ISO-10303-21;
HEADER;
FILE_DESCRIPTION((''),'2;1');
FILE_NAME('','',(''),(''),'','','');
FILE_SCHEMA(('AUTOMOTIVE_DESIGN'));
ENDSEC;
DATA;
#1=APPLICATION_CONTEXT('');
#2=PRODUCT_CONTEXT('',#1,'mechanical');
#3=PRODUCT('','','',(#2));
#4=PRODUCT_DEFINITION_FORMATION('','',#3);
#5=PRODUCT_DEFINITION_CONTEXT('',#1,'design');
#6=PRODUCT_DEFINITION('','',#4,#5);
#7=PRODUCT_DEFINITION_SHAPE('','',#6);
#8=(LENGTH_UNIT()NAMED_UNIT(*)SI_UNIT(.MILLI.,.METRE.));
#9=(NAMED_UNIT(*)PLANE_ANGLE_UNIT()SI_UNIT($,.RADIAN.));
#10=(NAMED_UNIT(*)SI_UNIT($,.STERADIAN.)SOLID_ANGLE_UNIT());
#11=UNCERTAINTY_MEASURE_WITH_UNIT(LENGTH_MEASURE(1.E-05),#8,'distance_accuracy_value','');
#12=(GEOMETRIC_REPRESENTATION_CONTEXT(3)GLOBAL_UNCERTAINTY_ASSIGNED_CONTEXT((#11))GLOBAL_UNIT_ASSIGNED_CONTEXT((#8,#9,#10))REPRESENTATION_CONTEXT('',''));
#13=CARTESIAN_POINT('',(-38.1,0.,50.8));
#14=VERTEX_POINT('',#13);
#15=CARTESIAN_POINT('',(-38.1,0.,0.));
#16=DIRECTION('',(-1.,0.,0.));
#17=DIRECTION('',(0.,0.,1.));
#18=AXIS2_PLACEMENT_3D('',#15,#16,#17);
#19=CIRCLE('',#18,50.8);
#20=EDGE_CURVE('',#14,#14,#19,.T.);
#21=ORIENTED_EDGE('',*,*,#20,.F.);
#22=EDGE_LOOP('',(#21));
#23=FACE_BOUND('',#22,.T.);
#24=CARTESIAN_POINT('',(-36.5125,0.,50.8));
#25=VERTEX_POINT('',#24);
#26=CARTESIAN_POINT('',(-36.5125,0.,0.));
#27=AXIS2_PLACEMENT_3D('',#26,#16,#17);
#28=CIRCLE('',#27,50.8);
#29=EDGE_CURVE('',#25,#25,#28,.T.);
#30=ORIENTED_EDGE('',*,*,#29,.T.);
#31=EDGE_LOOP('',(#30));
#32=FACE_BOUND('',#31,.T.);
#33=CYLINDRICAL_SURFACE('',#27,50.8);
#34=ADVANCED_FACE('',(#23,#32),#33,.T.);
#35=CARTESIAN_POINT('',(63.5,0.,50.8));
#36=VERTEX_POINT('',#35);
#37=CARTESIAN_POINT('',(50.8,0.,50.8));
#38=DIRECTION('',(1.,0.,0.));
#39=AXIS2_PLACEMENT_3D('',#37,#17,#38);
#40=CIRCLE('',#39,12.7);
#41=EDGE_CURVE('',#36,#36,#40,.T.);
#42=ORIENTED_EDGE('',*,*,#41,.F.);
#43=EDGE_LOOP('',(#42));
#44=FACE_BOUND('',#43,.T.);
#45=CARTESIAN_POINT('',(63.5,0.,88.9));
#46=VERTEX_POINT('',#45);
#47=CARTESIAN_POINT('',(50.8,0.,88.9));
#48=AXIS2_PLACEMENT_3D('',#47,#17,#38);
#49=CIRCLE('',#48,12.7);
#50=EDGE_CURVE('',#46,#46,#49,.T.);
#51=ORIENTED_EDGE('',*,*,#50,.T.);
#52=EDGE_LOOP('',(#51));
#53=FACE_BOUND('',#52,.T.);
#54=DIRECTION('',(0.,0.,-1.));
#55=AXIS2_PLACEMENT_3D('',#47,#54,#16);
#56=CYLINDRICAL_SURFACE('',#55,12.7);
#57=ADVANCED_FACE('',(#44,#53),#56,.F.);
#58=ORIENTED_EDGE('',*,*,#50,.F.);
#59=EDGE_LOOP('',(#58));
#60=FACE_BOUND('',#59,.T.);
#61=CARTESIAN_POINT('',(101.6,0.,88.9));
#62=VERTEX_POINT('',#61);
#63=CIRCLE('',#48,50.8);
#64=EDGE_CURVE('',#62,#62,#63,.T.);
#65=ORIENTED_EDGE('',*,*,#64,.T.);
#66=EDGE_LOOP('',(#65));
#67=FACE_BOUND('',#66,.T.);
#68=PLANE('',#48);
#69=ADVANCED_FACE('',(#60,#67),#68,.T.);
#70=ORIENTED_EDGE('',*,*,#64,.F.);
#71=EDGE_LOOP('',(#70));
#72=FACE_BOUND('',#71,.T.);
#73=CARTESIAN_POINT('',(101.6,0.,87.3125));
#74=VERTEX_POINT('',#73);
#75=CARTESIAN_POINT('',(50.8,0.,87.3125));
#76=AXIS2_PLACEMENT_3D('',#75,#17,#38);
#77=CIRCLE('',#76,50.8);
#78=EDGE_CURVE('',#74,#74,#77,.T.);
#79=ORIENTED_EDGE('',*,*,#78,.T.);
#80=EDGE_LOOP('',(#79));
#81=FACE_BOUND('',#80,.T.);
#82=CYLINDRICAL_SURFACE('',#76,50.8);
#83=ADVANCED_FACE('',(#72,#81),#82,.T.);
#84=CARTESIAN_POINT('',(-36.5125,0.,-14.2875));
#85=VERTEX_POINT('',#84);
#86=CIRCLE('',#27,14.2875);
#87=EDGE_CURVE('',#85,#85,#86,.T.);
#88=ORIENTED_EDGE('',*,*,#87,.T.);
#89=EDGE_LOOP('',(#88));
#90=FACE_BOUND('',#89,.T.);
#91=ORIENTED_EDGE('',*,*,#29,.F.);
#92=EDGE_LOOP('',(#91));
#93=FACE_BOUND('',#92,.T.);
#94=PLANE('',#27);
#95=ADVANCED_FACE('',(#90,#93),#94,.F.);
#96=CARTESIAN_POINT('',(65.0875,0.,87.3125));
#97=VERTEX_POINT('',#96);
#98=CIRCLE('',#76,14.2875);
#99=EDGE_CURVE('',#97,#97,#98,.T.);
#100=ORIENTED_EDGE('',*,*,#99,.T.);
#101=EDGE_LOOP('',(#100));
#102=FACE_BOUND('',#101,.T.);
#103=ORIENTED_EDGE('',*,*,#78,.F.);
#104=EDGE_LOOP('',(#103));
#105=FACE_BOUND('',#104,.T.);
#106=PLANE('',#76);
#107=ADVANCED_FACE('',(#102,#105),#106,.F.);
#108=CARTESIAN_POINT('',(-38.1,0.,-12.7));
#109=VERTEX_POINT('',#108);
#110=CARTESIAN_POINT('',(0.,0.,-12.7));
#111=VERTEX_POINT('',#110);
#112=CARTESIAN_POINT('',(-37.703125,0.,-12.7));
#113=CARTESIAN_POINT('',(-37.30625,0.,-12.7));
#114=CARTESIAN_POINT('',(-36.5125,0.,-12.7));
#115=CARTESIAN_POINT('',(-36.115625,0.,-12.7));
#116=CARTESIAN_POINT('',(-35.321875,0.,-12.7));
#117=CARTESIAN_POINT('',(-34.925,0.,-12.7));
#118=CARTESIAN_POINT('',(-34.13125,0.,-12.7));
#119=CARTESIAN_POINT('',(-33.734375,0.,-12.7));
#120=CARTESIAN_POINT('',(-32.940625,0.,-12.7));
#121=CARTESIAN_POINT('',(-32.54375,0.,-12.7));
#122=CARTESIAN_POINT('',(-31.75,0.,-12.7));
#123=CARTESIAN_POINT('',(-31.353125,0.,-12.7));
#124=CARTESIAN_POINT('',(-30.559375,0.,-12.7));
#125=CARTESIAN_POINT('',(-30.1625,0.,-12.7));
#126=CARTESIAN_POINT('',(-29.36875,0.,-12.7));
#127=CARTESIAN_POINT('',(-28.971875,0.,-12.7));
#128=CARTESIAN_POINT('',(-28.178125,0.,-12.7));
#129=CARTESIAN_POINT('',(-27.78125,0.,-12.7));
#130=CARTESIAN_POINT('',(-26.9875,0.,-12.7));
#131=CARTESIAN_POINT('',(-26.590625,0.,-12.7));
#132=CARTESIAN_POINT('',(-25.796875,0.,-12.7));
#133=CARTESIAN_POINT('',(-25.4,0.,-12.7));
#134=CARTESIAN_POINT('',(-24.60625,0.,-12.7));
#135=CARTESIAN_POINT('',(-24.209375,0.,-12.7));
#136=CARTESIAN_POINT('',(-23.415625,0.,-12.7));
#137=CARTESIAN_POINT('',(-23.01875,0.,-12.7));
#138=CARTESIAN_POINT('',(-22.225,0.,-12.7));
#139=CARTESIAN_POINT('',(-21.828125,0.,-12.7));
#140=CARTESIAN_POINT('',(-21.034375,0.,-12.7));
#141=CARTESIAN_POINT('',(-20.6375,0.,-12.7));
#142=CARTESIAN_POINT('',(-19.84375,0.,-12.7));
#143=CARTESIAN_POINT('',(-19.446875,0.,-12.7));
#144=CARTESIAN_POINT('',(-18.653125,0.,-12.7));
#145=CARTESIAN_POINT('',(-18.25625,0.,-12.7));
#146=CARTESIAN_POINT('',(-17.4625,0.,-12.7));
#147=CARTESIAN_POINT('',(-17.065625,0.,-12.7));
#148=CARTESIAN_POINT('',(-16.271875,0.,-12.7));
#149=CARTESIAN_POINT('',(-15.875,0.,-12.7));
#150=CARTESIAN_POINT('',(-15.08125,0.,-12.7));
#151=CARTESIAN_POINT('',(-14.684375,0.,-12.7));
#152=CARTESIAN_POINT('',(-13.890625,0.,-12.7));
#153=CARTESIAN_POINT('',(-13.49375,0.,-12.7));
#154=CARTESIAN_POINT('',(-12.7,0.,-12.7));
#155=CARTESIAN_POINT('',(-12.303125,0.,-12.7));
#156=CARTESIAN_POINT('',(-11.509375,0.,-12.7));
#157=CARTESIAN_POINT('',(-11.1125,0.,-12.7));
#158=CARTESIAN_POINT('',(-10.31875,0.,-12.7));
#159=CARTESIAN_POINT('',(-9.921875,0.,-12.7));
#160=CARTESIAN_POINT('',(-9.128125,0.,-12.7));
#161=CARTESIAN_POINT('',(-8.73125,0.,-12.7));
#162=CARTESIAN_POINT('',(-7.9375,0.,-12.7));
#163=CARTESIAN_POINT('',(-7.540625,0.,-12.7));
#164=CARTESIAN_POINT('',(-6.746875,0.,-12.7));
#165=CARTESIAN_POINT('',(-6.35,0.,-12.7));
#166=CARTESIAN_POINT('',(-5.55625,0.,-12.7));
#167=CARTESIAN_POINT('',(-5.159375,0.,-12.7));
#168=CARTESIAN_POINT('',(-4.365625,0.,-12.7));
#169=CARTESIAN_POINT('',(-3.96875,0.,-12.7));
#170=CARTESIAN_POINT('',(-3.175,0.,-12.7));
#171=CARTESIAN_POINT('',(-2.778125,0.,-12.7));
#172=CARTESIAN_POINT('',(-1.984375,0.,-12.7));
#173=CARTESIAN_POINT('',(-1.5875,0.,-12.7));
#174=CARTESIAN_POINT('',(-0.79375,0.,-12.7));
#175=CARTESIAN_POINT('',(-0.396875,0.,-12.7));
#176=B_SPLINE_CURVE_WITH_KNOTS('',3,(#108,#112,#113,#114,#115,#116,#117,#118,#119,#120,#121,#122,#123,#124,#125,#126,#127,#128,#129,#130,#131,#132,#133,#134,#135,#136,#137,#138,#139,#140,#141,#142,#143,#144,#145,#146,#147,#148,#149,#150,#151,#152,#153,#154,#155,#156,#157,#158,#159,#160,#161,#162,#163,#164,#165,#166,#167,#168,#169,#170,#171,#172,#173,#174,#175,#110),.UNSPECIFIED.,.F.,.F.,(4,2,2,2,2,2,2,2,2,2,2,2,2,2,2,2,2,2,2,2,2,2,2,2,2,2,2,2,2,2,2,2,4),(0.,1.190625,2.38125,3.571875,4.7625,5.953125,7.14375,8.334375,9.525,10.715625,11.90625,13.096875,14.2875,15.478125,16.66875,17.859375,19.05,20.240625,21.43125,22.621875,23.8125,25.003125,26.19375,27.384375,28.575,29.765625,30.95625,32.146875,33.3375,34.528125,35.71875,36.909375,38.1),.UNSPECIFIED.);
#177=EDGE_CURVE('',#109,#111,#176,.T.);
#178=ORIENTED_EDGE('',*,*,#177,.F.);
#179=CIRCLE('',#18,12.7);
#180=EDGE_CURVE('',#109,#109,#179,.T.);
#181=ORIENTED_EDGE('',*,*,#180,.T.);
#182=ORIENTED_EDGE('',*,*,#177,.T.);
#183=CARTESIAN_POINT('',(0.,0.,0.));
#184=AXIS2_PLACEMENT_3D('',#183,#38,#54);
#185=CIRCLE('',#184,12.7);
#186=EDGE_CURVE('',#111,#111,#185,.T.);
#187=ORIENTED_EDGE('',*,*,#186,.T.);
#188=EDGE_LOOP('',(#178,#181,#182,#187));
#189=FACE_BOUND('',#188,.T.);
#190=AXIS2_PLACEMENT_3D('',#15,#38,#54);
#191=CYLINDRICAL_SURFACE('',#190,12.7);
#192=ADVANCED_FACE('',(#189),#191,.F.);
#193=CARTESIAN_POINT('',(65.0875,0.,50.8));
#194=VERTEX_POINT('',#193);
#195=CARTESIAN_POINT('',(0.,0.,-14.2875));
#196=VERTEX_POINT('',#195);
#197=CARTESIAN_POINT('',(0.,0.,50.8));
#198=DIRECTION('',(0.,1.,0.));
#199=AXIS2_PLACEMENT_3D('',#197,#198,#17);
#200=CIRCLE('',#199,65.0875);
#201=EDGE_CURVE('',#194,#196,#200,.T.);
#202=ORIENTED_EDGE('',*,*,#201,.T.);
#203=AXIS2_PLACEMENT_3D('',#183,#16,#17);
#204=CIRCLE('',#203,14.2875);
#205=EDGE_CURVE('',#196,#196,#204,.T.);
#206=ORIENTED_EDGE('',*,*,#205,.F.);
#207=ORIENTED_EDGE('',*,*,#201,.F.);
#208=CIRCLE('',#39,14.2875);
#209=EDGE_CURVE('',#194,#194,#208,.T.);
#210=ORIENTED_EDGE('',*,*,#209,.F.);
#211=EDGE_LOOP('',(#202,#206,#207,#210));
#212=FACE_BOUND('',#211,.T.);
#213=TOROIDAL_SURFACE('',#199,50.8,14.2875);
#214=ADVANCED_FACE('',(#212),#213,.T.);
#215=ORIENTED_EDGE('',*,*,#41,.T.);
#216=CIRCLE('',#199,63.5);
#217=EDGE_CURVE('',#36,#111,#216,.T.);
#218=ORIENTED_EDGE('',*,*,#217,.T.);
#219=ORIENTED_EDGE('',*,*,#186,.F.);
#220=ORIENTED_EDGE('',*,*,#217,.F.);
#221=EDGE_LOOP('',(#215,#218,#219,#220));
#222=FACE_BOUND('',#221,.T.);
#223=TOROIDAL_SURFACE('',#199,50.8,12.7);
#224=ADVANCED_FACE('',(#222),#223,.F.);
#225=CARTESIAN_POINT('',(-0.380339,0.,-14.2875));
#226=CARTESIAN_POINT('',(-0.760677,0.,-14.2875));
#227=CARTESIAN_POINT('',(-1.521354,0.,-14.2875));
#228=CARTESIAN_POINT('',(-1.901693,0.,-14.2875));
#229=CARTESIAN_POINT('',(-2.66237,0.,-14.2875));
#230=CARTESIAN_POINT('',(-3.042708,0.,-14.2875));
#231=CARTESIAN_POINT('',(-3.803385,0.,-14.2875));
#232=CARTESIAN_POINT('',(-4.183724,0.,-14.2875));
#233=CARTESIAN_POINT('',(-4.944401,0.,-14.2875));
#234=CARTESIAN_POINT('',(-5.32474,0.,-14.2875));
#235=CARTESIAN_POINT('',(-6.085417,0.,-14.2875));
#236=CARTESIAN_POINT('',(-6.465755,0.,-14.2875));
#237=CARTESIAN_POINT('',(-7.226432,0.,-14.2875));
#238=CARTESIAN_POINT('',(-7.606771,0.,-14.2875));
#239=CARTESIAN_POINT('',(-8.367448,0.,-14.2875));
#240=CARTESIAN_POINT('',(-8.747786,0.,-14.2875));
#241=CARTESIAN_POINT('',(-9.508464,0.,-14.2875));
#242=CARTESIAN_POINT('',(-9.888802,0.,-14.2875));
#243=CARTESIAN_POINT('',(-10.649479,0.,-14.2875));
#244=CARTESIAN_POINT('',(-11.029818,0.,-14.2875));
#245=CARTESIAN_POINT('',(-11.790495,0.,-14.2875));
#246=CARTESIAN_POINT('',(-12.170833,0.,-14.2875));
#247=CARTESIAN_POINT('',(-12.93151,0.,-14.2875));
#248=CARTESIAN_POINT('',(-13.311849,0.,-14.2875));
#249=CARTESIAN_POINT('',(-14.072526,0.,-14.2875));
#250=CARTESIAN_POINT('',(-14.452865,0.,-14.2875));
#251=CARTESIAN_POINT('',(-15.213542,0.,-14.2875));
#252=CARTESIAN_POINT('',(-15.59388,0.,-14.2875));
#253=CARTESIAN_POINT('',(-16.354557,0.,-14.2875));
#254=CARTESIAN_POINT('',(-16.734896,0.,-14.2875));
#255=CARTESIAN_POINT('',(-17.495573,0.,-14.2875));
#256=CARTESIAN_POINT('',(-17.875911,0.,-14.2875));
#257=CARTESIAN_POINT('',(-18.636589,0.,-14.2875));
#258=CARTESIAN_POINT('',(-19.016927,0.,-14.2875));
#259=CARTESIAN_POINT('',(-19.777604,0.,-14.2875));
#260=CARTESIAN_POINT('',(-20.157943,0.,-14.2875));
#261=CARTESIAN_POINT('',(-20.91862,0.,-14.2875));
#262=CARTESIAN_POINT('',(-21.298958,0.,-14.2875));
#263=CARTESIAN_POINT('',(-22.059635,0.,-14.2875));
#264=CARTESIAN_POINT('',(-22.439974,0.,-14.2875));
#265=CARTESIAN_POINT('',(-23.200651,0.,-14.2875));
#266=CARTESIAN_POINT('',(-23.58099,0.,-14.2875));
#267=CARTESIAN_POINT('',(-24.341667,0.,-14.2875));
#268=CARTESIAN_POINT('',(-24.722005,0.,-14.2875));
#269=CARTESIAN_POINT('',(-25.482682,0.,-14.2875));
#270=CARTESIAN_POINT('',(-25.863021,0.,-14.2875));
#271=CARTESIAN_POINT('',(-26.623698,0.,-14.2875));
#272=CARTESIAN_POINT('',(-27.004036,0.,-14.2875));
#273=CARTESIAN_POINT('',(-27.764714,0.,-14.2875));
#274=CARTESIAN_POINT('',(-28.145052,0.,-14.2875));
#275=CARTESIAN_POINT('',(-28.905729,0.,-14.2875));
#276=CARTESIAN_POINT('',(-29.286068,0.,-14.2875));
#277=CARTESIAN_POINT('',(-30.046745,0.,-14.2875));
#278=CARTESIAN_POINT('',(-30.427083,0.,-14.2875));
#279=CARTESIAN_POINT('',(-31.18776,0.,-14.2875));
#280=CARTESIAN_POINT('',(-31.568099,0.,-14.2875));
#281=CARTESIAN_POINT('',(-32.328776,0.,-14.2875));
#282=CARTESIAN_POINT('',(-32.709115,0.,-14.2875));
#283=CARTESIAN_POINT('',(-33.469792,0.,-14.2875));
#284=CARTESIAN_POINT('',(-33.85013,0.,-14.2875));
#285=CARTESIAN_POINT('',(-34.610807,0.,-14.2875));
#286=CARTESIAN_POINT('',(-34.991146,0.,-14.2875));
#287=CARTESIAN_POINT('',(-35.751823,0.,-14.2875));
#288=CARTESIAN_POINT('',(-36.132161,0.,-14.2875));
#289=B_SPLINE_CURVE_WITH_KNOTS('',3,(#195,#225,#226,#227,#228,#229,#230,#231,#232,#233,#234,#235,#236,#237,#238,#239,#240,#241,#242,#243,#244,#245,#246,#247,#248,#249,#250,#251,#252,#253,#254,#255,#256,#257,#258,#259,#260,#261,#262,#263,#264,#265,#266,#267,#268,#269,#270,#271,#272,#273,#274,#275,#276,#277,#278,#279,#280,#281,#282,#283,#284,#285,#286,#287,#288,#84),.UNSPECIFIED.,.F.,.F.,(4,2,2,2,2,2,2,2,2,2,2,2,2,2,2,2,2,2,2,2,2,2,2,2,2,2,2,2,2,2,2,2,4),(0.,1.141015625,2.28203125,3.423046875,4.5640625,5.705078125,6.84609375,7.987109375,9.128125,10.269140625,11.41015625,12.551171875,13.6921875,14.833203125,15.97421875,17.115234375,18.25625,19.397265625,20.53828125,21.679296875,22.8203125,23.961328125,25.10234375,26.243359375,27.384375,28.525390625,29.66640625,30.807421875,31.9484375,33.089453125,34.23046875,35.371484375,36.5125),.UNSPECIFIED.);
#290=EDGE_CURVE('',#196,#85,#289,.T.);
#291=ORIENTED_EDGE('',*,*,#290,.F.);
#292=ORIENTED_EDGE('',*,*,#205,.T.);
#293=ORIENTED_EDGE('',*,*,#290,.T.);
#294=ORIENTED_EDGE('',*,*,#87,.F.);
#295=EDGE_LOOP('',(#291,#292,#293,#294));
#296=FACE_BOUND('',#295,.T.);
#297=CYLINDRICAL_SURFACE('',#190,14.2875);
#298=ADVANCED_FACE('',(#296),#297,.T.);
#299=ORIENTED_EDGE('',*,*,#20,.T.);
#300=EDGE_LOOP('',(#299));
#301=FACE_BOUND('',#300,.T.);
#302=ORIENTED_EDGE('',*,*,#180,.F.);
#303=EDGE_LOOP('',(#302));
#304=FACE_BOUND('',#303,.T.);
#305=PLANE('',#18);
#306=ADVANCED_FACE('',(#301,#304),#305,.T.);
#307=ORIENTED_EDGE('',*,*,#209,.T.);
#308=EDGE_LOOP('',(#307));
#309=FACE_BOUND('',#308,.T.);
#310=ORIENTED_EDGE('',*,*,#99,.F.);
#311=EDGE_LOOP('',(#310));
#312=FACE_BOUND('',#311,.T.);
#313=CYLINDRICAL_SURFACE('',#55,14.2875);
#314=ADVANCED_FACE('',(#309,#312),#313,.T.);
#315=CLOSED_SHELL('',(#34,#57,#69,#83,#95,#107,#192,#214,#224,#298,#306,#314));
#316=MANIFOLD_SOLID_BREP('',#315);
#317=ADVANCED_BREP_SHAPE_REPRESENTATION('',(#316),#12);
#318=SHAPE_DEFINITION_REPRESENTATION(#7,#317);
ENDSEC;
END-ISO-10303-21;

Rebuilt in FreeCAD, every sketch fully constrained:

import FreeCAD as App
import Part
import Sketcher
from FreeCAD import Vector
Q = App.Units.Quantity

doc = App.newDocument("Part")
body = doc.addObject("PartDesign::Body", "Body")

# Sketch on YZ plane
sketch1 = doc.addObject("Sketcher::SketchObject", "Sketch")
body.addObject(sketch1)
sketch1.AttachmentSupport = (doc.YZ_Plane, [""])
sketch1.MapMode = "FlatFace"
sketch1.addGeometry([
    Part.Circle(Vector(0, 0, 0), Vector(0, 0, 1), 14),
    Part.Circle(Vector(0, 0, 0), Vector(0, 0, 1), 13),
], False)
sketch1.addGeometry(Part.LineSegment(Vector(0, 51, 0), Vector(-10, 51, 0)), True)  # axis
sketch1.addConstraint([
    Sketcher.Constraint("Horizontal", 2),
    Sketcher.Constraint("Coincident", 0, 3, -1, 1),
    Sketcher.Constraint("Coincident", 1, 3, -1, 1),
    Sketcher.Constraint("PointOnObject", 2, 1, -2),
    Sketcher.Constraint("Diameter", 1, Q("1 in")),
    Sketcher.Constraint("Diameter", 0, Q("1.125 in")),
    Sketcher.Constraint("DistanceY", -1, 1, 2, 1, Q("2 in")),
    Sketcher.Constraint("DistanceX", 2, 2, 2, 1, 10.0),
])
revolution = doc.addObject("PartDesign::Revolution", "Revolution")
body.addObject(revolution)
revolution.Profile = sketch1
revolution.ReferenceAxis = (sketch1, ["Axis0"])
revolution.Angle = 90

# Sketch on XY plane
sketch2 = doc.addObject("Sketcher::SketchObject", "Sketch001")
body.addObject(sketch2)
sketch2.AttachmentSupport = (doc.XY_Plane, [""])
sketch2.MapMode = "FlatFace"
sketch2.AttachmentOffset = App.Placement(Vector(0, 0, 2 * 25.4), App.Rotation())
sketch2.addGeometry([
    Part.Circle(Vector(51, 0, 0), Vector(0, 0, 1), 14),
    Part.Circle(Vector(51, 0, 0), Vector(0, 0, 1), 13),
], False)
sketch2.addConstraint([
    Sketcher.Constraint("Coincident", 1, 3, 0, 3),
    Sketcher.Constraint("PointOnObject", 0, 3, -1),
    Sketcher.Constraint("Diameter", 1, Q("1 in")),
    Sketcher.Constraint("Diameter", 0, Q("1.125 in")),
    Sketcher.Constraint("DistanceX", -1, 1, 0, 3, Q("2 in")),
])
pad1 = doc.addObject("PartDesign::Pad", "Pad")
body.addObject(pad1)
pad1.Profile = sketch2
pad1.Length = Q("1.5 in")

# Sketch on YZ plane
sketch3 = doc.addObject("Sketcher::SketchObject", "Sketch002")
body.addObject(sketch3)
sketch3.AttachmentSupport = (doc.YZ_Plane, [""])
sketch3.MapMode = "FlatFace"
sketch3.addGeometry([
    Part.Circle(Vector(0, 0, 0), Vector(0, 0, 1), 14),
    Part.Circle(Vector(0, 0, 0), Vector(0, 0, 1), 13),
], False)
sketch3.addConstraint([
    Sketcher.Constraint("Coincident", 0, 3, -1, 1),
    Sketcher.Constraint("Coincident", 1, 3, -1, 1),
    Sketcher.Constraint("Diameter", 1, Q("1 in")),
    Sketcher.Constraint("Diameter", 0, Q("1.125 in")),
])
pad2 = doc.addObject("PartDesign::Pad", "Pad001")
body.addObject(pad2)
pad2.Profile = sketch3
pad2.Length = Q("1.5 in")
pad2.Reversed = True

# Sketch on YZ plane
sketch4 = doc.addObject("Sketcher::SketchObject", "Sketch003")
body.addObject(sketch4)
sketch4.AttachmentSupport = (doc.YZ_Plane, [""])
sketch4.MapMode = "FlatFace"
sketch4.AttachmentOffset = App.Placement(Vector(0, 0, -1.4375 * 25.4), App.Rotation())
sketch4.addGeometry([
    Part.Circle(Vector(0, 0, 0), Vector(0, 0, 1), 51),
    Part.Circle(Vector(0, 0, 0), Vector(0, 0, 1), 13),
], False)
sketch4.addConstraint([
    Sketcher.Constraint("Coincident", 0, 3, -1, 1),
    Sketcher.Constraint("Coincident", 1, 3, -1, 1),
    Sketcher.Constraint("Diameter", 0, Q("4 in")),
    Sketcher.Constraint("Diameter", 1, Q("1 in")),
])
pad3 = doc.addObject("PartDesign::Pad", "Pad002")
body.addObject(pad3)
pad3.Profile = sketch4
pad3.Length = Q("0.0625 in")
pad3.Reversed = True

# Sketch on XY plane
sketch5 = doc.addObject("Sketcher::SketchObject", "Sketch004")
body.addObject(sketch5)
sketch5.AttachmentSupport = (doc.XY_Plane, [""])
sketch5.MapMode = "FlatFace"
sketch5.AttachmentOffset = App.Placement(Vector(0, 0, 3.4375 * 25.4), App.Rotation())
sketch5.addGeometry([
    Part.Circle(Vector(51, 0, 0), Vector(0, 0, 1), 51),
    Part.Circle(Vector(51, 0, 0), Vector(0, 0, 1), 13),
], False)
sketch5.addConstraint([
    Sketcher.Constraint("Coincident", 1, 3, 0, 3),
    Sketcher.Constraint("PointOnObject", 0, 3, -1),
    Sketcher.Constraint("Diameter", 0, Q("4 in")),
    Sketcher.Constraint("Diameter", 1, Q("1 in")),
    Sketcher.Constraint("DistanceX", -1, 1, 0, 3, Q("2 in")),
])
pad4 = doc.addObject("PartDesign::Pad", "Pad003")
body.addObject(pad4)
pad4.Profile = sketch5
pad4.Length = Q("0.0625 in")

doc.recompute()
